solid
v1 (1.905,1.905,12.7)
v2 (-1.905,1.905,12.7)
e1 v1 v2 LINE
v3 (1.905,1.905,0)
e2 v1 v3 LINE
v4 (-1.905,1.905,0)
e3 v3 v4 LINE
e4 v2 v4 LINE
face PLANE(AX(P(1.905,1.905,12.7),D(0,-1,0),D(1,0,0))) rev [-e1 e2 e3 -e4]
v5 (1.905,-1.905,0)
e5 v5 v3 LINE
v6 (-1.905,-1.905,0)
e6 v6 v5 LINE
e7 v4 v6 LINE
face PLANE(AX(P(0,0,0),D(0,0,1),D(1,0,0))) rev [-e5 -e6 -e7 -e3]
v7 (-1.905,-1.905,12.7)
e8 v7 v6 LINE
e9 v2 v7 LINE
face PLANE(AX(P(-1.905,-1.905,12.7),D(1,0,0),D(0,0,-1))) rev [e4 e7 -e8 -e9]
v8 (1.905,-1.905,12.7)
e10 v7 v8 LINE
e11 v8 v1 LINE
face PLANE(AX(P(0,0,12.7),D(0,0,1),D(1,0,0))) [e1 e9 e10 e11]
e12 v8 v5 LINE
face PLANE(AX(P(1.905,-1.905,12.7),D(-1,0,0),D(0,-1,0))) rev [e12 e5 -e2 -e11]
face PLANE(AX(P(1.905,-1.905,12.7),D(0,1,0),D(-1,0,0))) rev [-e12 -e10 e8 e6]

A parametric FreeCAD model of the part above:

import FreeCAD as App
import Part
import Sketcher
Q = App.Units.Quantity

doc = App.newDocument("Part")
params = doc.addObject("Spreadsheet::Sheet", "Params")
for row, (alias, value) in enumerate([
    ("sketch1_width", "0.15 in"),
    ("pad1_length", "0.5 in"),
], start=1):
    params.set(f"A{row}", alias)
    params.set(f"B{row}", "=" + value)
    params.setAlias(f"B{row}", alias)

body = doc.addObject("PartDesign::Body", "Body")

# Sketch on XY plane
sketch1 = body.newObject("Sketcher::SketchObject", "Sketch")
sketch1.AttachmentSupport = (doc.getObject("XY_Plane"), [""])
sketch1.MapMode = "FlatFace"
sketch1.addGeometry([
    Part.LineSegment(App.Vector(-1.9, 1.9, 0), App.Vector(-1.9, -1.9, 0)),
    Part.LineSegment(App.Vector(-1.9, -1.9, 0), App.Vector(1.9, -1.9, 0)),
    Part.LineSegment(App.Vector(1.9, -1.9, 0), App.Vector(1.9, 1.9, 0)),
    Part.LineSegment(App.Vector(1.9, 1.9, 0), App.Vector(-1.9, 1.9, 0)),
], False)
sketch1.addConstraint([
    Sketcher.Constraint("Coincident", 0, 2, 1, 1),
    Sketcher.Constraint("Coincident", 1, 2, 2, 1),
    Sketcher.Constraint("Coincident", 2, 2, 3, 1),
    Sketcher.Constraint("Coincident", 3, 2, 0, 1),
    Sketcher.Constraint("Vertical", 0),
    Sketcher.Constraint("Horizontal", 1),
    Sketcher.Constraint("Vertical", 2),
    Sketcher.Constraint("Horizontal", 3),
    Sketcher.Constraint("Symmetric", 0, 2, 2, 2, -1, 1),
    Sketcher.Constraint("Equal", 3, 0),
    Sketcher.Constraint("DistanceX", 1, 1, 1, 2, Q("0.15 in")),
])
sketch1.setExpression("Constraints[10]", "Params.sketch1_width")
pad1 = body.newObject("PartDesign::Pad", "Pad")
pad1.Profile = sketch1
pad1.setExpression("Length", "Params.pad1_length")

doc.recompute()
